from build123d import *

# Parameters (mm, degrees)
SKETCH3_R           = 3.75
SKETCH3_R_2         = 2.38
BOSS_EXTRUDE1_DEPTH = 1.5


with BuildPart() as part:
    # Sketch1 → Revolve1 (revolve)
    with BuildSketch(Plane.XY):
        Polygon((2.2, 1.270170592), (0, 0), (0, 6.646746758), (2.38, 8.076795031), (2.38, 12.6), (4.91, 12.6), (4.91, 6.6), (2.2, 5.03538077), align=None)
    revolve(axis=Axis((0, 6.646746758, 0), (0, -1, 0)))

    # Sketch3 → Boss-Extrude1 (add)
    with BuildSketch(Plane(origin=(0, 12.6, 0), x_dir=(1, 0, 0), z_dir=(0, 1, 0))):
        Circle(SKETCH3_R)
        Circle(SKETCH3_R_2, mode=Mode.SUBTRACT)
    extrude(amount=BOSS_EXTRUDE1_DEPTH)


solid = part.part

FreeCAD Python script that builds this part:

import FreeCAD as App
import Part
import Sketcher
Q = App.Units.Quantity

doc = App.newDocument("Part")
params = doc.addObject("Spreadsheet::Sheet", "Params")
for row, (alias, value) in enumerate([
    ("sketch1_height", "6 mm"),
    ("sketch1_width", "2.53 mm"),
    ("revolution_angle", "360 deg"),
    ("sketch2_diameter", "7.5 mm"),
    ("sketch2_diameter2", "4.76 mm"),
    ("pad1_length", "1.5 mm"),
], start=1):
    params.set(f"A{row}", alias)
    params.set(f"B{row}", "=" + value)
    params.setAlias(f"B{row}", alias)

body = doc.addObject("PartDesign::Body", "Body")

sketch1 = doc.addObject("Sketcher::SketchObject", "Sketch")
body.addObject(sketch1)
sketch1.AttachmentSupport = (doc.XY_Plane, [""])
sketch1.MapMode = "FlatFace"
sketch1.addGeometry([
    Part.LineSegment(App.Vector(0, 0, 0), App.Vector(2.2, 1.3, 0)),
    Part.LineSegment(App.Vector(2.2, 1.3, 0), App.Vector(2.2, 5, 0)),
    Part.LineSegment(App.Vector(2.2, 5, 0), App.Vector(4.9, 6.6, 0)),
    Part.LineSegment(App.Vector(4.9, 6.6, 0), App.Vector(4.9, 12.6, 0)),
    Part.LineSegment(App.Vector(4.9, 12.6, 0), App.Vector(2.4, 12.6, 0)),
    Part.LineSegment(App.Vector(2.4, 12.6, 0), App.Vector(2.4, 8.1, 0)),
    Part.LineSegment(App.Vector(2.4, 8.1, 0), App.Vector(0, 6.6, 0)),
    Part.LineSegment(App.Vector(0, 6.6, 0), App.Vector(0, 0, 0)),
], False)
sketch1.addConstraint([
    Sketcher.Constraint("Coincident", 0, 2, 1, 1),
    Sketcher.Constraint("Coincident", 1, 2, 2, 1),
    Sketcher.Constraint("Coincident", 2, 2, 3, 1),
    Sketcher.Constraint("Coincident", 3, 2, 4, 1),
    Sketcher.Constraint("Coincident", 4, 2, 5, 1),
    Sketcher.Constraint("Coincident", 5, 2, 6, 1),
    Sketcher.Constraint("Coincident", 6, 2, 7, 1),
    Sketcher.Constraint("Coincident", 7, 2, 0, 1),
    Sketcher.Constraint("Vertical", 1),
    Sketcher.Constraint("Vertical", 3),
    Sketcher.Constraint("Horizontal", 4),
    Sketcher.Constraint("Vertical", 5),
    Sketcher.Constraint("Vertical", 7),
    Sketcher.Constraint("Coincident", 7, 2, -1, 1),
    Sketcher.Constraint("Parallel", 0, 2),
    Sketcher.Constraint("DistanceY", 3, 1, 3, 2, 6.0),
    Sketcher.Constraint("Angle", 0, Q("30 deg")),
    Sketcher.Constraint("Angle", 6, Q("-149 deg")),
    Sketcher.Constraint("DistanceX", 4, 2, 4, 1, 2.53),
    Sketcher.Constraint("DistanceX", -1, 1, 0, 2, 2.2),
    Sketcher.Constraint("DistanceY", -1, 1, 2, 2, 6.6),
    Sketcher.Constraint("DistanceX", -1, 1, 2, 2, 4.91),
    Sketcher.Constraint("DistanceY", 5, 2, 5, 1, 4.523205),
])
sketch1.setExpression("Constraints[15]", "Params.sketch1_height")
sketch1.setExpression("Constraints[18]", "Params.sketch1_width")
revolution = doc.addObject("PartDesign::Revolution", "Revolution")
body.addObject(revolution)
revolution.Profile = sketch1
revolution.ReferenceAxis = (sketch1, ["V_Axis"])
revolution.setExpression("Angle", "Params.revolution_angle")

sketch2 = doc.addObject("Sketcher::SketchObject", "Sketch001")
body.addObject(sketch2)
sketch2.AttachmentSupport = (doc.XZ_Plane, [""])
sketch2.MapMode = "FlatFace"
sketch2.AttachmentOffset = App.Placement(App.Vector(0, 0, -12.6), App.Rotation())
sketch2.addGeometry([
    Part.Circle(App.Vector(0, 0, 0), App.Vector(0, 0, 1), 3.8),
    Part.Circle(App.Vector(0, 0, 0), App.Vector(0, 0, 1), 2.4),
], False)
sketch2.addConstraint([
    Sketcher.Constraint("Coincident", 0, 3, -1, 1),
    Sketcher.Constraint("Coincident", 1, 3, -1, 1),
    Sketcher.Constraint("Diameter", 0, 7.5),
    Sketcher.Constraint("Diameter", 1, 4.76),
])
sketch2.setExpression("Constraints[2]", "Params.sketch2_diameter")
sketch2.setExpression("Constraints[3]", "Params.sketch2_diameter2")
pad1 = doc.addObject("PartDesign::Pad", "Pad")
body.addObject(pad1)
pad1.Profile = sketch2
pad1.setExpression("Length", "Params.pad1_length")
pad1.Reversed = True

doc.recompute()
